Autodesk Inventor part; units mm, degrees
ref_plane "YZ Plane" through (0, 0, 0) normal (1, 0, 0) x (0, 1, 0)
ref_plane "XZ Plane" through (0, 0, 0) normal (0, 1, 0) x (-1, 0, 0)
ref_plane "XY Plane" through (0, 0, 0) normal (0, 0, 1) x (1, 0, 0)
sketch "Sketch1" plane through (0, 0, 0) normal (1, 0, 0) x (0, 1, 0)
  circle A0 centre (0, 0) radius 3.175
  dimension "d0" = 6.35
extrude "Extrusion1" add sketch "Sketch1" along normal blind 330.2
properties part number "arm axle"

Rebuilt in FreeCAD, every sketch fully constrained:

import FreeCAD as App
import Part
import Sketcher
from FreeCAD import Vector
Q = App.Units.Quantity

doc = App.newDocument("Part")
body = doc.addObject("PartDesign::Body", "Body")

# Sketch on YZ plane
sketch1 = doc.addObject("Sketcher::SketchObject", "Sketch")
body.addObject(sketch1)
sketch1.AttachmentSupport = (doc.YZ_Plane, [""])
sketch1.MapMode = "FlatFace"
sketch1.addGeometry(Part.Circle(Vector(0, 0, 0), Vector(0, 0, 1), 3.2), False)
sketch1.addConstraint([
    Sketcher.Constraint("Coincident", 0, 3, -1, 1),
    Sketcher.Constraint("Diameter", 0, Q("0.25 in")),
])
pad1 = doc.addObject("PartDesign::Pad", "Pad")
body.addObject(pad1)
pad1.Profile = sketch1
pad1.Length = Q("13 in")

doc.recompute()
